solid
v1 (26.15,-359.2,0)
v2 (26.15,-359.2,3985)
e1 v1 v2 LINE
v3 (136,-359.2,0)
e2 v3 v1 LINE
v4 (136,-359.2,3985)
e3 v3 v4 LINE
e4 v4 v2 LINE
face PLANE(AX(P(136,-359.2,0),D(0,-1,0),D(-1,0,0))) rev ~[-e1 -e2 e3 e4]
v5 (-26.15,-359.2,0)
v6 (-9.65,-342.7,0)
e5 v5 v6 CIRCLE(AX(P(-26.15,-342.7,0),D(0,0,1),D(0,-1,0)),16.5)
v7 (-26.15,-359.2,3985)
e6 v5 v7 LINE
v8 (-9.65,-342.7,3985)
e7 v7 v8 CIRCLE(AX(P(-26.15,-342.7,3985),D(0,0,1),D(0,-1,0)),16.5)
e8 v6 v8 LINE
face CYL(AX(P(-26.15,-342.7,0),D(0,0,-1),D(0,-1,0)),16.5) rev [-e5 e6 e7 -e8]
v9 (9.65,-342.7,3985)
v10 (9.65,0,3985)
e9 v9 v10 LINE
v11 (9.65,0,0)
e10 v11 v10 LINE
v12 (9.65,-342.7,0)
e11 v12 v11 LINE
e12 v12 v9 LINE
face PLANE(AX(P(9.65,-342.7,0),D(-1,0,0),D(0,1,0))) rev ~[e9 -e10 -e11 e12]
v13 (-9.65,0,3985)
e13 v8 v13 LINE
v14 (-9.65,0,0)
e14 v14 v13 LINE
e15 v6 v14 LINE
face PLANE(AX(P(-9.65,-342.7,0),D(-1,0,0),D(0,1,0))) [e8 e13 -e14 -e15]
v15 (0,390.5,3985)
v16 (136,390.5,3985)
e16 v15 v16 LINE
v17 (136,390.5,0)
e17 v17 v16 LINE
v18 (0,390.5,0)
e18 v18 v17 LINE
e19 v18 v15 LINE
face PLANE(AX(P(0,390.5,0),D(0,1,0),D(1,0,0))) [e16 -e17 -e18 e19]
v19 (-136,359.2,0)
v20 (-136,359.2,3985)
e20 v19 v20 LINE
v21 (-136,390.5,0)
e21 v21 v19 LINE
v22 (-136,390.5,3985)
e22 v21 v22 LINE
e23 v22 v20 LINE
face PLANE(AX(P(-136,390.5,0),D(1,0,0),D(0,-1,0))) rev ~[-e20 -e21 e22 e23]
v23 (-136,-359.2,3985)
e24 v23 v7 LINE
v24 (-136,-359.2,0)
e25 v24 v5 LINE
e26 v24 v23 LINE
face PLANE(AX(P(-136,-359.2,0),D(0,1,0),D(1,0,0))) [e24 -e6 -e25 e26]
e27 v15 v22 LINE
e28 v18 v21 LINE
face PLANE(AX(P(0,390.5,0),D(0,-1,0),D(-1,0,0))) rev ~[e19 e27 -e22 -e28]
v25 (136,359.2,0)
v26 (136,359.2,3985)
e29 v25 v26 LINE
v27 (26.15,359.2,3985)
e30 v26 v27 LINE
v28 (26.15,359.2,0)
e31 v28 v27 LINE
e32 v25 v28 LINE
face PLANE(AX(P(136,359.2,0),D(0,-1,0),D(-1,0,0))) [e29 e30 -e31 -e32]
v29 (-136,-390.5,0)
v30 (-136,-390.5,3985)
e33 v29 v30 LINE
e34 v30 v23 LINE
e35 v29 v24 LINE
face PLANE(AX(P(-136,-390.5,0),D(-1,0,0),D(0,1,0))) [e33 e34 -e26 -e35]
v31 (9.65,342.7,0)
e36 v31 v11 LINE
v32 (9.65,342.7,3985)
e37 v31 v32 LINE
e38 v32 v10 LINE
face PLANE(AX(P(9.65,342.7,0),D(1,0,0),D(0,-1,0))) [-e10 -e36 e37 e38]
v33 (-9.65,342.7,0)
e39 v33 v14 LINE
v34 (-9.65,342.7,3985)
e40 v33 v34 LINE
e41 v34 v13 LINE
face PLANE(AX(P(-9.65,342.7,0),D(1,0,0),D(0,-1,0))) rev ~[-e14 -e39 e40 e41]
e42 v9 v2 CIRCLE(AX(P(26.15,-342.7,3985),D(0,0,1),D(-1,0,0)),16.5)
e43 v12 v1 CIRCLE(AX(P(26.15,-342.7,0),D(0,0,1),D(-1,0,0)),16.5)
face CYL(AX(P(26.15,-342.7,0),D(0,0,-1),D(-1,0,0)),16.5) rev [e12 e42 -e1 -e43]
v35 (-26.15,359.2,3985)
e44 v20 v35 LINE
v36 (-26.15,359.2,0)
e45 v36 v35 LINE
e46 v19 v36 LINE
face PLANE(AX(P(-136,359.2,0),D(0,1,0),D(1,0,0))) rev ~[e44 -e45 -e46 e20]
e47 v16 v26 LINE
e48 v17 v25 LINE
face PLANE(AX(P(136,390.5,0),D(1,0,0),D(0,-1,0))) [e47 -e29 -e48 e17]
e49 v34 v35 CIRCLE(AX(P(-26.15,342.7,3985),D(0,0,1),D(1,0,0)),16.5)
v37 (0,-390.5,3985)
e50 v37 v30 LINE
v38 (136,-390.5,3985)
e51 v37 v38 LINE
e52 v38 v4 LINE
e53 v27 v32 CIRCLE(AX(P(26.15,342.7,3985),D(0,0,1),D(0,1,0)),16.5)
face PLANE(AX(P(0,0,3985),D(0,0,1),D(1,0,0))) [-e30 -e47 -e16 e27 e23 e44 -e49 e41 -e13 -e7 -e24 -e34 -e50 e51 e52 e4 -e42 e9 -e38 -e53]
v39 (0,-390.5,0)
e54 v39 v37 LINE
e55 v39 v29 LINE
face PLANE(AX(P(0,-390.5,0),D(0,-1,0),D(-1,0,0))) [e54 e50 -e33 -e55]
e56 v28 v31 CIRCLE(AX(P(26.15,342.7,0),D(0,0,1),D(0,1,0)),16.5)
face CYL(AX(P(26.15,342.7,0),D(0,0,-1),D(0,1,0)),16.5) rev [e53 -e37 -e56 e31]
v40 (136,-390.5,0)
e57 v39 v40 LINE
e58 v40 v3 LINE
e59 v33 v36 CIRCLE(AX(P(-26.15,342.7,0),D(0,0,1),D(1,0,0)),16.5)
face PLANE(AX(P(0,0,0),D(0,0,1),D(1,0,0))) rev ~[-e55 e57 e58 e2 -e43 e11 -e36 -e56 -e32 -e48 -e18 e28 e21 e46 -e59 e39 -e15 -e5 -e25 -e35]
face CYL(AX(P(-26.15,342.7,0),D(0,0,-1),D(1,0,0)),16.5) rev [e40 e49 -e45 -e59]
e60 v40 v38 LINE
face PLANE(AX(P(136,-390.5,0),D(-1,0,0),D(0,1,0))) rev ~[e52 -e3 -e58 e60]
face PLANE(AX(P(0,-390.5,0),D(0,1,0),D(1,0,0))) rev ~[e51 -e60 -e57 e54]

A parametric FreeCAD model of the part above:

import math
import FreeCAD as App
import Part
import Sketcher
from FreeCAD import Vector

doc = App.newDocument("Part")
params = doc.addObject("Spreadsheet::Sheet", "Params")
for row, (alias, value) in enumerate([
    ("sketch1_radius", "16.5 mm"),
    ("sketch1_height", "31.3 mm"),
    ("pad1_length", "3985 mm"),
], start=1):
    params.set(f"A{row}", alias)
    params.set(f"B{row}", "=" + value)
    params.setAlias(f"B{row}", alias)

body = doc.addObject("PartDesign::Body", "Body")

# Sketch on XY plane
sketch1 = doc.addObject("Sketcher::SketchObject", "Sketch")
body.addObject(sketch1)
sketch1.AttachmentSupport = (doc.XY_Plane, [""])
sketch1.MapMode = "FlatFace"
sketch1.addGeometry([
    Part.LineSegment(Vector(-136, -359, 0), Vector(-136, -390, 0)),  # 0
    Part.LineSegment(Vector(-136, -390, 0), Vector(136, -390, 0)),  # 1
    Part.LineSegment(Vector(136, -390, 0), Vector(136, -359, 0)),  # 2
    Part.LineSegment(Vector(136, -359, 0), Vector(26, -359, 0)),  # 3
    Part.ArcOfCircle(Part.Circle(Vector(26, -343, 0), Vector(0, 0, 1), 16), math.radians(180), math.radians(270)),  # 4
    Part.LineSegment(Vector(10, -343, 0), Vector(10, 343, 0)),  # 5
    Part.ArcOfCircle(Part.Circle(Vector(26, 343, 0), Vector(0, 0, 1), 16), math.radians(90), math.radians(180)),  # 6
    Part.LineSegment(Vector(26, 359, 0), Vector(136, 359, 0)),  # 7
    Part.LineSegment(Vector(136, 359, 0), Vector(136, 390, 0)),  # 8
    Part.LineSegment(Vector(136, 390, 0), Vector(-136, 390, 0)),  # 9
    Part.LineSegment(Vector(-136, 390, 0), Vector(-136, 359, 0)),  # 10
    Part.LineSegment(Vector(-136, 359, 0), Vector(-26, 359, 0)),  # 11
    Part.ArcOfCircle(Part.Circle(Vector(-26, 343, 0), Vector(0, 0, 1), 16), math.radians(0), math.radians(90)),  # 12
    Part.LineSegment(Vector(-10, 343, 0), Vector(-10, -343, 0)),  # 13
    Part.ArcOfCircle(Part.Circle(Vector(-26, -343, 0), Vector(0, 0, 1), 16), math.radians(-90), math.radians(0)),  # 14
    Part.LineSegment(Vector(-26, -359, 0), Vector(-136, -359, 0)),  # 15
], False)
sketch1.addConstraint([
    Sketcher.Constraint("Coincident", 0, 2, 1, 1),
    Sketcher.Constraint("Coincident", 1, 2, 2, 1),
    Sketcher.Constraint("Coincident", 2, 2, 3, 1),
    Sketcher.Constraint("Tangent", 3, 2, 4, 2),
    Sketcher.Constraint("Tangent", 4, 1, 5, 1),
    Sketcher.Constraint("Tangent", 5, 2, 6, 2),
    Sketcher.Constraint("Tangent", 6, 1, 7, 1),
    Sketcher.Constraint("Coincident", 7, 2, 8, 1),
    Sketcher.Constraint("Coincident", 8, 2, 9, 1),
    Sketcher.Constraint("Coincident", 9, 2, 10, 1),
    Sketcher.Constraint("Coincident", 10, 2, 11, 1),
    Sketcher.Constraint("Tangent", 11, 2, 12, 2),
    Sketcher.Constraint("Tangent", 12, 1, 13, 1),
    Sketcher.Constraint("Tangent", 13, 2, 14, 2),
    Sketcher.Constraint("Tangent", 14, 1, 15, 1),
    Sketcher.Constraint("Coincident", 15, 2, 0, 1),
    Sketcher.Constraint("Vertical", 0),
    Sketcher.Constraint("Horizontal", 1),
    Sketcher.Constraint("Vertical", 2),
    Sketcher.Constraint("Horizontal", 3),
    Sketcher.Constraint("Vertical", 5),
    Sketcher.Constraint("Horizontal", 7),
    Sketcher.Constraint("Vertical", 8),
    Sketcher.Constraint("Horizontal", 9),
    Sketcher.Constraint("Vertical", 10),
    Sketcher.Constraint("Horizontal", 11),
    Sketcher.Constraint("Vertical", 13),
    Sketcher.Constraint("Horizontal", 15),
    Sketcher.Constraint("Equal", 4, 6),
    Sketcher.Constraint("Equal", 6, 12),
    Sketcher.Constraint("Equal", 12, 14),
    Sketcher.Constraint("Symmetric", 4, 3, 12, 3, -1, 1),
    Sketcher.Constraint("Symmetric", 0, 2, 8, 2, -1, 1),
    Sketcher.Constraint("Symmetric", 7, 2, 10, 2, -2),
    Sketcher.Constraint("Symmetric", 2, 2, 15, 2, -2),
    Sketcher.Constraint("Radius", 4, 16.5),
    Sketcher.Constraint("DistanceY", 0, 2, 0, 1, 31.3),
    Sketcher.Constraint("DistanceX", 0, 2, -1, 1, 136.0),
    Sketcher.Constraint("DistanceY", 0, 2, -1, 1, 390.5),
    Sketcher.Constraint("DistanceX", -1, 1, 4, 1, 9.65),
])
sketch1.setExpression("Constraints[35]", "Params.sketch1_radius")
sketch1.setExpression("Constraints[36]", "Params.sketch1_height")
pad1 = doc.addObject("PartDesign::Pad", "Pad")
body.addObject(pad1)
pad1.Profile = sketch1
pad1.setExpression("Length", "Params.pad1_length")

doc.recompute()
